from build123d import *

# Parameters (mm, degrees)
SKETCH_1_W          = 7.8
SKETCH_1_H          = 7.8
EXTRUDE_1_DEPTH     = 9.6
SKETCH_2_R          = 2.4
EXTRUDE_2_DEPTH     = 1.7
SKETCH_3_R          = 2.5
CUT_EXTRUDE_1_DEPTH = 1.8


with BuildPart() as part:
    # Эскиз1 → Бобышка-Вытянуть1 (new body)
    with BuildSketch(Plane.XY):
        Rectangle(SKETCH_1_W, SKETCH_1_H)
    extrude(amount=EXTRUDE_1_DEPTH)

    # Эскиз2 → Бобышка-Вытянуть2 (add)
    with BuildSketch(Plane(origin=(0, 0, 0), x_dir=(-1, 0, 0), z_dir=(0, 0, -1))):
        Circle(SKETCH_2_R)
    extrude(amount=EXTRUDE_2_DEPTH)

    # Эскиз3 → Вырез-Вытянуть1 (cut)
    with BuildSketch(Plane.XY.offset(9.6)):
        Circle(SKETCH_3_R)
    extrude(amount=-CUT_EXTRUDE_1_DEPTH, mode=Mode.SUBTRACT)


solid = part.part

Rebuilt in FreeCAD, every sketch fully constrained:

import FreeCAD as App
import Part
import Sketcher
from FreeCAD import Vector
Q = App.Units.Quantity


def add_polygon(sketch, points):
    """Adds a closed chain of lines whose ends are joined by coincident constraints."""
    first, n = sketch.GeometryCount, len(points)
    for a, b in zip(points, points[1:] + points[:1]):
        sketch.addGeometry(Part.LineSegment(App.Vector(*a, 0), App.Vector(*b, 0)), False)
    for i in range(n):
        sketch.addConstraint(Sketcher.Constraint("Coincident", first + i, 2, first + (i + 1) % n, 1))

doc = App.newDocument("Part")
body = doc.addObject("PartDesign::Body", "Body")

# Sketch on XY plane
sketch1 = body.newObject("Sketcher::SketchObject", "Sketch")
sketch1.AttachmentSupport = (doc.getObject("XY_Plane"), [""])
sketch1.MapMode = "FlatFace"
add_polygon(sketch1, [(-4, 4), (-4, -4), (4, -4), (4, 4)])  # lines 0-3
sketch1.addConstraint(Sketcher.Constraint("Vertical", 0))
sketch1.addConstraint(Sketcher.Constraint("Horizontal", 1))
sketch1.addConstraint(Sketcher.Constraint("Vertical", 2))
sketch1.addConstraint(Sketcher.Constraint("Horizontal", 3))
sketch1.addConstraint(Sketcher.Constraint("Symmetric", 0, 2, 2, 2, -1, 1))
sketch1.addConstraint(Sketcher.Constraint("Equal", 3, 0))
sketch1.addConstraint(Sketcher.Constraint("DistanceX", 1, 1, 1, 2, Q("7.8 mm")))
pad1 = body.newObject("PartDesign::Pad", "Pad")
pad1.Profile = sketch1
pad1.Length = 9.6

# Sketch on XY plane
sketch2 = body.newObject("Sketcher::SketchObject", "Sketch001")
sketch2.AttachmentSupport = (doc.getObject("XY_Plane"), [""])
sketch2.MapMode = "FlatFace"
sketch2.addGeometry(Part.Circle(Vector(0, 0, 0), Vector(0, 0, 1), 2.4), False)
sketch2.addConstraint(Sketcher.Constraint("Coincident", 0, 3, -1, 1))
sketch2.addConstraint(Sketcher.Constraint("Diameter", 0, Q("4.8 mm")))
pad2 = body.newObject("PartDesign::Pad", "Pad001")
pad2.Profile = sketch2
pad2.Length = 1.7
pad2.Reversed = True

# Sketch on XY plane
sketch3 = body.newObject("Sketcher::SketchObject", "Sketch002")
sketch3.AttachmentSupport = (doc.getObject("XY_Plane"), [""])
sketch3.MapMode = "FlatFace"
sketch3.AttachmentOffset = App.Placement(Vector(0, 0, 9.6), App.Rotation())
sketch3.addGeometry(Part.Circle(Vector(0, 0, 0), Vector(0, 0, 1), 2.5), False)
sketch3.addConstraint(Sketcher.Constraint("Coincident", 0, 3, -1, 1))
sketch3.addConstraint(Sketcher.Constraint("Diameter", 0, Q("5 mm")))
pocket1 = body.newObject("PartDesign::Pocket", "Pocket")
pocket1.Profile = sketch3
pocket1.Length = 1.8

doc.recompute()
